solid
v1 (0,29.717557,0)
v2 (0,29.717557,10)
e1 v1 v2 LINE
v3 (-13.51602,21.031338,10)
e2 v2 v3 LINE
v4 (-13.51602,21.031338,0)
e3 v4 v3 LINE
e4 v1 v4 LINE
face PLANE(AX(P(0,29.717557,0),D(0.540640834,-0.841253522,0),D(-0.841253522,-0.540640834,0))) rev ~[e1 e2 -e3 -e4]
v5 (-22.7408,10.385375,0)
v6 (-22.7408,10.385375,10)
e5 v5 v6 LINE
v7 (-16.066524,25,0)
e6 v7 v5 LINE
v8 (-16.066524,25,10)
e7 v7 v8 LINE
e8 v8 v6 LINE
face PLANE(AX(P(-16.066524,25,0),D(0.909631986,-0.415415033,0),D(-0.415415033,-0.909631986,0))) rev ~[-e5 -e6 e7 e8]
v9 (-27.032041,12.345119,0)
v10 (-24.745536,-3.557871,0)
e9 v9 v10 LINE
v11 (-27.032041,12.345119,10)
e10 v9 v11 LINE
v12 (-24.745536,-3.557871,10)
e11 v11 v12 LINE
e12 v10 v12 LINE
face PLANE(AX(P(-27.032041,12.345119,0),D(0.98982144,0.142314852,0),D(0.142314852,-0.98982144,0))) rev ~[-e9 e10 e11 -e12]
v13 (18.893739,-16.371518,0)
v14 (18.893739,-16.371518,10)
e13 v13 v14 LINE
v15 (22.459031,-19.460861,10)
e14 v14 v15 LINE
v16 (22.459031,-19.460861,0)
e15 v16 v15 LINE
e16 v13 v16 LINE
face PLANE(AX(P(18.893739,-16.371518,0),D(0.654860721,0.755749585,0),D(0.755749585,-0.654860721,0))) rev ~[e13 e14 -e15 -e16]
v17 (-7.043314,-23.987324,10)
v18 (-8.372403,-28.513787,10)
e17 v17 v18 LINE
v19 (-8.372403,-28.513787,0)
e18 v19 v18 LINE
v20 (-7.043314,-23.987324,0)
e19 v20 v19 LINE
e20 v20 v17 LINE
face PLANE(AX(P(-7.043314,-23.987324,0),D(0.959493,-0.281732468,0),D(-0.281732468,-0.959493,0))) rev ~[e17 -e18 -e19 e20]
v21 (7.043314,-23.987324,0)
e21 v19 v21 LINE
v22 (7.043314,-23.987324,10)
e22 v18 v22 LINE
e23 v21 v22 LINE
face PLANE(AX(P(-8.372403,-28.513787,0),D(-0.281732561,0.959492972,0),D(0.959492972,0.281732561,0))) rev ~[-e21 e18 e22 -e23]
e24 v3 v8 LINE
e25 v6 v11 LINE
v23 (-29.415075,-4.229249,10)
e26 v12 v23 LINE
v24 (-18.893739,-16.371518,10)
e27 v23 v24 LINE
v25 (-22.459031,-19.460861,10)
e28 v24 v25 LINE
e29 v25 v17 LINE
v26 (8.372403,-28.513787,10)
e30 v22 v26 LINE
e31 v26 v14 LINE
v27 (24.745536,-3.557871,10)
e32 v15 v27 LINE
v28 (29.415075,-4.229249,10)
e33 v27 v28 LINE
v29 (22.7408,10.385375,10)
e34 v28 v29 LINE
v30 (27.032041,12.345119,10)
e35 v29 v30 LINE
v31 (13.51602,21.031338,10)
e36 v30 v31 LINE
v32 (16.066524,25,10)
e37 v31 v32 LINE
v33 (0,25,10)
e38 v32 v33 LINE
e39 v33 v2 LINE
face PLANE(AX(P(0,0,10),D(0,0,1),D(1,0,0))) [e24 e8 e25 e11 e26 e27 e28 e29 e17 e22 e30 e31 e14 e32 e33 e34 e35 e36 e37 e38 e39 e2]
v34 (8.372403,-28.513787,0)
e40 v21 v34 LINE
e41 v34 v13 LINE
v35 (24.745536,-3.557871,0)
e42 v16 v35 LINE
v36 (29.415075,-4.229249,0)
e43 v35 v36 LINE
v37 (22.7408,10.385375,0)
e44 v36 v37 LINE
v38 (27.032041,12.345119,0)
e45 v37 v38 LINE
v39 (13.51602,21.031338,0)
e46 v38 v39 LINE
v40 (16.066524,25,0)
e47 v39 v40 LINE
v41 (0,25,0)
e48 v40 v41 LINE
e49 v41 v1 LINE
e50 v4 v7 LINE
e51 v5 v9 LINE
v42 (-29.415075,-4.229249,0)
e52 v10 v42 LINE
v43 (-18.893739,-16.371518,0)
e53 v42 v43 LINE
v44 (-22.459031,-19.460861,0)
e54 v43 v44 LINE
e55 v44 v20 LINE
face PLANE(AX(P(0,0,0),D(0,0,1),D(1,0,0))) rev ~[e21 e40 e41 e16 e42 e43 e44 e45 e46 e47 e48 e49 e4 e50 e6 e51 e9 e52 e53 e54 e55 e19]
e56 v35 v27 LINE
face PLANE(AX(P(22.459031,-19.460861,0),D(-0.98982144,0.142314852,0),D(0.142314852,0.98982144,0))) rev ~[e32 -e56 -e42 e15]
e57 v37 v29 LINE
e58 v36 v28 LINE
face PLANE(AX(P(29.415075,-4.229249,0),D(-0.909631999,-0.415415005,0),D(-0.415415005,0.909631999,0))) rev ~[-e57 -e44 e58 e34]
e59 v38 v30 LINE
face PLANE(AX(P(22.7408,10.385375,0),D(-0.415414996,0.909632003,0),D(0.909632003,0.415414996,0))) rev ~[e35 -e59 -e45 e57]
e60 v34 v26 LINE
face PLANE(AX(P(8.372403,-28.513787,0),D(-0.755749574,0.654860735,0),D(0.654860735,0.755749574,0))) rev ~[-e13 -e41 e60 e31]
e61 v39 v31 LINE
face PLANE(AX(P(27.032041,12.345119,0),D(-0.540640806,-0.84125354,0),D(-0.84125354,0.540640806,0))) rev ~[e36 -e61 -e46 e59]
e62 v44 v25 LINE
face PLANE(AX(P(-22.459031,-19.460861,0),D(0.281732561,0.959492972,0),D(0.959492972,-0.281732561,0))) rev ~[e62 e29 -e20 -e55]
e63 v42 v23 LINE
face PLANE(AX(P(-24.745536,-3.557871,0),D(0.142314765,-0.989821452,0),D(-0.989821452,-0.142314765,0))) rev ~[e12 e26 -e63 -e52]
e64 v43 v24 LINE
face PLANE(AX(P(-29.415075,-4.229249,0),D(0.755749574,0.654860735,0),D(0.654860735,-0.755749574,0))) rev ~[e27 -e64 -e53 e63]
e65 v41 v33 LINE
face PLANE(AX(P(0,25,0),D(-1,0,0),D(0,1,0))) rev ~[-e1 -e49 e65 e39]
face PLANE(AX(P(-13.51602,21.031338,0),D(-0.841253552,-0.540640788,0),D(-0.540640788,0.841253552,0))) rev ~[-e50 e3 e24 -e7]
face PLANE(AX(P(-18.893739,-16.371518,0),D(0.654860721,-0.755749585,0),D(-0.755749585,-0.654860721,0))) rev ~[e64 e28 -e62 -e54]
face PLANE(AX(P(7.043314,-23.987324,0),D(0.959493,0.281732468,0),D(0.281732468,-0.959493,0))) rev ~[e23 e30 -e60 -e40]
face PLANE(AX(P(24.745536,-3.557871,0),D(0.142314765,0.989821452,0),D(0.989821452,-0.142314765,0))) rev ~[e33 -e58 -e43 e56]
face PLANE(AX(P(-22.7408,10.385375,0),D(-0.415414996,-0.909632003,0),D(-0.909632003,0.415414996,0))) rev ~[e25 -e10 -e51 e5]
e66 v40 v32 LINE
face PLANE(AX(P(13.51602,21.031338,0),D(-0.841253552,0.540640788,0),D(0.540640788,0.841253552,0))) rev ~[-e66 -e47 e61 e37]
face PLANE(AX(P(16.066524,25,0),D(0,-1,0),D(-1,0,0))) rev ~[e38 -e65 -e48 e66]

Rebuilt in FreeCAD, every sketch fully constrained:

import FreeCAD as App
import Part
import Sketcher

V = App.Vector

doc = App.newDocument("Part")
body = doc.addObject("PartDesign::Body", "Body")

# Sketch on XY plane
sketch1 = body.newObject("Sketcher::SketchObject", "Sketch")
sketch1.AttachmentSupport = (doc.getObject("XY_Plane"), [""])
sketch1.MapMode = "FlatFace"
sketch1.addGeometry(Part.LineSegment(V(0, 25, 0), V(0, 29.7, 0)), False)
sketch1.addGeometry(Part.LineSegment(V(0, 29.7, 0), V(-13.5, 21, 0)), False)
sketch1.addGeometry(Part.LineSegment(V(-13.5, 21, 0), V(-16.1, 25, 0)), False)
sketch1.addGeometry(Part.LineSegment(V(-16.1, 25, 0), V(-22.7, 10.4, 0)), False)
sketch1.addGeometry(Part.LineSegment(V(-22.7, 10.4, 0), V(-27, 12.3, 0)), False)
sketch1.addGeometry(Part.LineSegment(V(-27, 12.3, 0), V(-24.7, -3.6, 0)), False)
sketch1.addGeometry(Part.LineSegment(V(-24.7, -3.6, 0), V(-29.4, -4.2, 0)), False)
sketch1.addGeometry(Part.LineSegment(V(-29.4, -4.2, 0), V(-18.9, -16.4, 0)), False)
sketch1.addGeometry(Part.LineSegment(V(-18.9, -16.4, 0), V(-22.5, -19.5, 0)), False)
sketch1.addGeometry(Part.LineSegment(V(-22.5, -19.5, 0), V(-7, -24, 0)), False)
sketch1.addGeometry(Part.LineSegment(V(-7, -24, 0), V(-8.4, -28.5, 0)), False)
sketch1.addGeometry(Part.LineSegment(V(-8.4, -28.5, 0), V(7, -24, 0)), False)
sketch1.addGeometry(Part.LineSegment(V(7, -24, 0), V(8.4, -28.5, 0)), False)
sketch1.addGeometry(Part.LineSegment(V(8.4, -28.5, 0), V(18.9, -16.4, 0)), False)
sketch1.addGeometry(Part.LineSegment(V(18.9, -16.4, 0), V(22.5, -19.5, 0)), False)
sketch1.addGeometry(Part.LineSegment(V(22.5, -19.5, 0), V(24.7, -3.6, 0)), False)
sketch1.addGeometry(Part.LineSegment(V(24.7, -3.6, 0), V(29.4, -4.2, 0)), False)
sketch1.addGeometry(Part.LineSegment(V(29.4, -4.2, 0), V(22.7, 10.4, 0)), False)
sketch1.addGeometry(Part.LineSegment(V(22.7, 10.4, 0), V(27, 12.3, 0)), False)
sketch1.addGeometry(Part.LineSegment(V(27, 12.3, 0), V(13.5, 21, 0)), False)
sketch1.addGeometry(Part.LineSegment(V(13.5, 21, 0), V(16.1, 25, 0)), False)
sketch1.addGeometry(Part.LineSegment(V(16.1, 25, 0), V(0, 25, 0)), False)
sketch1.addConstraint(Sketcher.Constraint("Coincident", 0, 2, 1, 1))
sketch1.addConstraint(Sketcher.Constraint("Coincident", 1, 2, 2, 1))
sketch1.addConstraint(Sketcher.Constraint("Coincident", 2, 2, 3, 1))
sketch1.addConstraint(Sketcher.Constraint("Coincident", 3, 2, 4, 1))
sketch1.addConstraint(Sketcher.Constraint("Coincident", 4, 2, 5, 1))
sketch1.addConstraint(Sketcher.Constraint("Coincident", 5, 2, 6, 1))
sketch1.addConstraint(Sketcher.Constraint("Coincident", 6, 2, 7, 1))
sketch1.addConstraint(Sketcher.Constraint("Coincident", 7, 2, 8, 1))
sketch1.addConstraint(Sketcher.Constraint("Coincident", 8, 2, 9, 1))
sketch1.addConstraint(Sketcher.Constraint("Coincident", 9, 2, 10, 1))
sketch1.addConstraint(Sketcher.Constraint("Coincident", 10, 2, 11, 1))
sketch1.addConstraint(Sketcher.Constraint("Coincident", 11, 2, 12, 1))
sketch1.addConstraint(Sketcher.Constraint("Coincident", 12, 2, 13, 1))
sketch1.addConstraint(Sketcher.Constraint("Coincident", 13, 2, 14, 1))
sketch1.addConstraint(Sketcher.Constraint("Coincident", 14, 2, 15, 1))
sketch1.addConstraint(Sketcher.Constraint("Coincident", 15, 2, 16, 1))
sketch1.addConstraint(Sketcher.Constraint("Coincident", 16, 2, 17, 1))
sketch1.addConstraint(Sketcher.Constraint("Coincident", 17, 2, 18, 1))
sketch1.addConstraint(Sketcher.Constraint("Coincident", 18, 2, 19, 1))
sketch1.addConstraint(Sketcher.Constraint("Coincident", 19, 2, 20, 1))
sketch1.addConstraint(Sketcher.Constraint("Coincident", 20, 2, 21, 1))
sketch1.addConstraint(Sketcher.Constraint("Coincident", 21, 2, 0, 1))
sketch1.addConstraint(Sketcher.Constraint("Vertical", 0))
sketch1.addConstraint(Sketcher.Constraint("Horizontal", 21))
sketch1.addConstraint(Sketcher.Constraint("Symmetric", 9, 2, 11, 2, -2))
sketch1.addConstraint(Sketcher.Constraint("Symmetric", 10, 2, 12, 2, -2))
sketch1.addConstraint(Sketcher.Constraint("Symmetric", 7, 2, 13, 2, -2))
sketch1.addConstraint(Sketcher.Constraint("Symmetric", 8, 2, 14, 2, -2))
sketch1.addConstraint(Sketcher.Constraint("Symmetric", 5, 2, 15, 2, -2))
sketch1.addConstraint(Sketcher.Constraint("Symmetric", 6, 2, 16, 2, -2))
sketch1.addConstraint(Sketcher.Constraint("Symmetric", 3, 2, 17, 2, -2))
sketch1.addConstraint(Sketcher.Constraint("Symmetric", 4, 2, 18, 2, -2))
sketch1.addConstraint(Sketcher.Constraint("Symmetric", 1, 2, 19, 2, -2))
sketch1.addConstraint(Sketcher.Constraint("Symmetric", 2, 2, 20, 2, -2))
sketch1.addConstraint(Sketcher.Constraint("PointOnObject", 0, 2, -2))
sketch1.addConstraint(Sketcher.Constraint("Perpendicular", 1, 2))
sketch1.addConstraint(Sketcher.Constraint("Perpendicular", 3, 4))
sketch1.addConstraint(Sketcher.Constraint("Perpendicular", 5, 6))
sketch1.addConstraint(Sketcher.Constraint("Perpendicular", 7, 8))
sketch1.addConstraint(Sketcher.Constraint("Perpendicular", 9, 10))
sketch1.addConstraint(Sketcher.Constraint("Perpendicular", 11, 12))
sketch1.addConstraint(Sketcher.Constraint("Perpendicular", 13, 14))
sketch1.addConstraint(Sketcher.Constraint("Perpendicular", 15, 16))
sketch1.addConstraint(Sketcher.Constraint("Perpendicular", 17, 18))
sketch1.addConstraint(Sketcher.Constraint("Perpendicular", 19, 20))
sketch1.addConstraint(Sketcher.Constraint("Equal", 1, 3))
sketch1.addConstraint(Sketcher.Constraint("Equal", 2, 4))
sketch1.addConstraint(Sketcher.Constraint("Equal", 3, 5))
sketch1.addConstraint(Sketcher.Constraint("Equal", 4, 6))
sketch1.addConstraint(Sketcher.Constraint("Equal", 5, 7))
sketch1.addConstraint(Sketcher.Constraint("Equal", 6, 8))
sketch1.addConstraint(Sketcher.Constraint("Equal", 7, 9))
sketch1.addConstraint(Sketcher.Constraint("Equal", 8, 10))
sketch1.addConstraint(Sketcher.Constraint("Equal", 9, 11))
sketch1.addConstraint(Sketcher.Constraint("DistanceY", -1, 1, 2, 2, 25.0))
sketch1.addConstraint(Sketcher.Constraint("DistanceX", 3, 2, -1, 1, 22.7408))
pad1 = body.newObject("PartDesign::Pad", "Pad")
pad1.Profile = sketch1
pad1.Length = 10

doc.recompute()
